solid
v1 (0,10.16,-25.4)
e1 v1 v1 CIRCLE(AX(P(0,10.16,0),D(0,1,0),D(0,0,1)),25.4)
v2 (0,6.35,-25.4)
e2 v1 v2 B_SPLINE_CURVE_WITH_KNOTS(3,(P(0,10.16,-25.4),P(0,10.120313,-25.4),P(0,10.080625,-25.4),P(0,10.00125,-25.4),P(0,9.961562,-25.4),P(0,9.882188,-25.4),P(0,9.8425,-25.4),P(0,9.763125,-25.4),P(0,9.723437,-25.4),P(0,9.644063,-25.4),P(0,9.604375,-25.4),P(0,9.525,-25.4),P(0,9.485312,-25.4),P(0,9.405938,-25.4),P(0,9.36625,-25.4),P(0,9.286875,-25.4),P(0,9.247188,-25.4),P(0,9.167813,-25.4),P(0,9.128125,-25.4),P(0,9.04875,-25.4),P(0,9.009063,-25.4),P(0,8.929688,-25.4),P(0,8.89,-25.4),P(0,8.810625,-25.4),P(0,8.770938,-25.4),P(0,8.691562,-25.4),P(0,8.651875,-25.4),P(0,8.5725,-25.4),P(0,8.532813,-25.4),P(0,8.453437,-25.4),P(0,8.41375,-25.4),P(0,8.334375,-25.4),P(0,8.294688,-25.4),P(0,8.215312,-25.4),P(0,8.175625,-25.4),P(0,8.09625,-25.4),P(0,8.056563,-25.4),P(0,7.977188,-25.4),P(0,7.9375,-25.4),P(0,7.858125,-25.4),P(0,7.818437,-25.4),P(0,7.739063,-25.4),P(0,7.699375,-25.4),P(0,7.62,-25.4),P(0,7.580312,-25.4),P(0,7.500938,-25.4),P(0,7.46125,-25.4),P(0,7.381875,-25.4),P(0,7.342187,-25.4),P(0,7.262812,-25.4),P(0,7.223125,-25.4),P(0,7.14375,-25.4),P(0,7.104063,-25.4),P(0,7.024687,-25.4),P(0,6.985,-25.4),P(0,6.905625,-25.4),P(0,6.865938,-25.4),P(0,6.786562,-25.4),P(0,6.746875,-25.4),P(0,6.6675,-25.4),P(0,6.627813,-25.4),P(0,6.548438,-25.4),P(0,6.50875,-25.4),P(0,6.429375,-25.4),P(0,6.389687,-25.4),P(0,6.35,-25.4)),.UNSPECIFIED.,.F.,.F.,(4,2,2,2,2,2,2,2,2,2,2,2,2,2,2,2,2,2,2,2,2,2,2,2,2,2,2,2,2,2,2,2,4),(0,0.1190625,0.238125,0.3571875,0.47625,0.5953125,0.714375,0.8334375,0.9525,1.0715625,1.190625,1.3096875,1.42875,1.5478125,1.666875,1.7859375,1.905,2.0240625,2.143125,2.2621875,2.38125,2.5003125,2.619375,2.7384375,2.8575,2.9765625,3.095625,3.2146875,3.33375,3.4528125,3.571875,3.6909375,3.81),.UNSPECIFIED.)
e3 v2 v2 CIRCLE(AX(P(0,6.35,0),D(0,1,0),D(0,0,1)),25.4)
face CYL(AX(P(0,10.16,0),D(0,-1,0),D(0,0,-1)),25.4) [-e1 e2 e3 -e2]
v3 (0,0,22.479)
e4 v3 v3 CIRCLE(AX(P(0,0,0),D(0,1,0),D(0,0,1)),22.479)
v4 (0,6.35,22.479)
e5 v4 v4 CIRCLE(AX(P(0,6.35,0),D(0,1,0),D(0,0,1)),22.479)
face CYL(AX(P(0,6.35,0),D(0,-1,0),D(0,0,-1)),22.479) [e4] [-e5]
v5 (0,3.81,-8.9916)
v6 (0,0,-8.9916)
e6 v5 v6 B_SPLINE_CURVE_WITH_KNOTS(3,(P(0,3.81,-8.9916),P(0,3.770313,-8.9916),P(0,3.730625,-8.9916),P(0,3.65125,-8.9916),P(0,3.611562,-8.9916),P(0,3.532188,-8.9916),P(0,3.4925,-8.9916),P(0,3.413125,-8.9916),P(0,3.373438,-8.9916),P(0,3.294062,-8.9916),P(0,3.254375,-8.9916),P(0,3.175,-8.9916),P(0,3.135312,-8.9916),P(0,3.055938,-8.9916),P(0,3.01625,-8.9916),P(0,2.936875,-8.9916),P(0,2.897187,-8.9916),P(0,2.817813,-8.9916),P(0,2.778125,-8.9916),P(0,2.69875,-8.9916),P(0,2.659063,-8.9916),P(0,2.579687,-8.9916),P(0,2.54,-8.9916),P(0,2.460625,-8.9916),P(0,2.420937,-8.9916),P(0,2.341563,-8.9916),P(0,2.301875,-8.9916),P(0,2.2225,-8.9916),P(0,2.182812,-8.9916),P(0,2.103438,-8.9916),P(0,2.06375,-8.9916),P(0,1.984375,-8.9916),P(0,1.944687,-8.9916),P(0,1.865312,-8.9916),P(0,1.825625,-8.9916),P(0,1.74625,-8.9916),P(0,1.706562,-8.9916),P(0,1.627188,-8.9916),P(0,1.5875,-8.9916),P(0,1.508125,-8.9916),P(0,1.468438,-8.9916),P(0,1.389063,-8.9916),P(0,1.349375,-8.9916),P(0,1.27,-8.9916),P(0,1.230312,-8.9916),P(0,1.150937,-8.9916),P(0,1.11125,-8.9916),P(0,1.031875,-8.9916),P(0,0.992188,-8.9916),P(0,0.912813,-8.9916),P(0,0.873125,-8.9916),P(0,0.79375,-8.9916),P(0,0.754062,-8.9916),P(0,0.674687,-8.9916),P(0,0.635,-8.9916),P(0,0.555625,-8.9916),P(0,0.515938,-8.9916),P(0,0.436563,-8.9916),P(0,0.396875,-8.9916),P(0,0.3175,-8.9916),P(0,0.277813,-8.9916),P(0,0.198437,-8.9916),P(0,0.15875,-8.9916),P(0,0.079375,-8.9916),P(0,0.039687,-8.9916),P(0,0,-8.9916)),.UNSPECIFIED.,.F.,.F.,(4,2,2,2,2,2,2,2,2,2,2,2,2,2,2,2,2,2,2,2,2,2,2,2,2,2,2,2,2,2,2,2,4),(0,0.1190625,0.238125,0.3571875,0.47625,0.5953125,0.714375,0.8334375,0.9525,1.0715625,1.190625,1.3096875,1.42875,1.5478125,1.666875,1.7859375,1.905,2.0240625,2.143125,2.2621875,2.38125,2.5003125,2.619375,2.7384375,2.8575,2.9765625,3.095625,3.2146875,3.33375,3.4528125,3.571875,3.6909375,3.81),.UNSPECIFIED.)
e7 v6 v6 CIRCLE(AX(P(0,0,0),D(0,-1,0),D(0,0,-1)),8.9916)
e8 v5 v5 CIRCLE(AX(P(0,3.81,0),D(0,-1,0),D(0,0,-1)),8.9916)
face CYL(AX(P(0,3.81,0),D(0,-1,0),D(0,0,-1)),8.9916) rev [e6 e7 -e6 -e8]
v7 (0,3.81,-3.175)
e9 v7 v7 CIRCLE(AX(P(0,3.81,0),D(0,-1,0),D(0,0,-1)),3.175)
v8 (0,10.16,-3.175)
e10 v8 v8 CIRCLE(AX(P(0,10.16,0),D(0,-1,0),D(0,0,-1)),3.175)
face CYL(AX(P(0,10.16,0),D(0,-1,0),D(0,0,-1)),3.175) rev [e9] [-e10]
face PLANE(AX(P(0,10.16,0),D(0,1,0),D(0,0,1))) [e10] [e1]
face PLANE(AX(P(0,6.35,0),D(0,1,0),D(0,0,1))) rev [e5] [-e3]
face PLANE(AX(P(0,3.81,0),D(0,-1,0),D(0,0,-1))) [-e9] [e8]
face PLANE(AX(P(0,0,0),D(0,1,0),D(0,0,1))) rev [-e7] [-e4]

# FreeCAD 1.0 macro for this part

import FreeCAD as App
import Part
import Sketcher
from FreeCAD import Vector
Q = App.Units.Quantity

doc = App.newDocument("Part")
body = doc.addObject("PartDesign::Body", "Body")

sketch1 = doc.addObject("Sketcher::SketchObject", "Sketch")
body.addObject(sketch1)
sketch1.AttachmentSupport = (doc.XZ_Plane, [""])
sketch1.MapMode = "FlatFace"
sketch1.addGeometry(Part.Circle(Vector(0, 0, 0), Vector(0, 0, 1), 22), False)
sketch1.addConstraint(Sketcher.Constraint("Coincident", 0, 3, -1, 1))
sketch1.addConstraint(Sketcher.Constraint("Diameter", 0, Q("1.77 in")))
pad1 = doc.addObject("PartDesign::Pad", "Pad")
body.addObject(pad1)
pad1.Profile = sketch1
pad1.Length = Q("0.25 in")
pad1.Reversed = True

sketch2 = doc.addObject("Sketcher::SketchObject", "Sketch001")
body.addObject(sketch2)
sketch2.AttachmentSupport = (doc.XZ_Plane, [""])
sketch2.MapMode = "FlatFace"
sketch2.AttachmentOffset = App.Placement(Vector(0, 0, -0.25 * 25.4), App.Rotation())
sketch2.addGeometry(Part.Circle(Vector(0, 0, 0), Vector(0, 0, 1), 25), False)
sketch2.addConstraint(Sketcher.Constraint("Coincident", 0, 3, -1, 1))
sketch2.addConstraint(Sketcher.Constraint("Diameter", 0, Q("2 in")))
pad2 = doc.addObject("PartDesign::Pad", "Pad001")
body.addObject(pad2)
pad2.Profile = sketch2
pad2.Length = Q("0.15 in")
pad2.Reversed = True

sketch3 = doc.addObject("Sketcher::SketchObject", "Sketch002")
body.addObject(sketch3)
sketch3.AttachmentSupport = (doc.XZ_Plane, [""])
sketch3.MapMode = "FlatFace"
sketch3.addGeometry(Part.Circle(Vector(0, 0, 0), Vector(0, 0, 1), 9), False)
sketch3.addConstraint(Sketcher.Constraint("Coincident", 0, 3, -1, 1))
sketch3.addConstraint(Sketcher.Constraint("Diameter", 0, Q("0.708 in")))
pocket1 = doc.addObject("PartDesign::Pocket", "Pocket")
body.addObject(pocket1)
pocket1.Profile = sketch3
pocket1.Length = Q("0.15 in")

sketch4 = doc.addObject("Sketcher::SketchObject", "Sketch003")
body.addObject(sketch4)
sketch4.AttachmentSupport = (doc.XZ_Plane, [""])
sketch4.MapMode = "FlatFace"
sketch4.AttachmentOffset = App.Placement(Vector(0, 0, -0.15 * 25.4), App.Rotation())
sketch4.addGeometry(Part.Circle(Vector(0, 0, 0), Vector(0, 0, 1), 3.2), False)
sketch4.addConstraint(Sketcher.Constraint("Coincident", 0, 3, -1, 1))
sketch4.addConstraint(Sketcher.Constraint("Diameter", 0, Q("0.25 in")))
pocket2 = doc.addObject("PartDesign::Pocket", "Pocket001")
body.addObject(pocket2)
pocket2.Profile = sketch4
pocket2.Type = "ThroughAll"

doc.recompute()
